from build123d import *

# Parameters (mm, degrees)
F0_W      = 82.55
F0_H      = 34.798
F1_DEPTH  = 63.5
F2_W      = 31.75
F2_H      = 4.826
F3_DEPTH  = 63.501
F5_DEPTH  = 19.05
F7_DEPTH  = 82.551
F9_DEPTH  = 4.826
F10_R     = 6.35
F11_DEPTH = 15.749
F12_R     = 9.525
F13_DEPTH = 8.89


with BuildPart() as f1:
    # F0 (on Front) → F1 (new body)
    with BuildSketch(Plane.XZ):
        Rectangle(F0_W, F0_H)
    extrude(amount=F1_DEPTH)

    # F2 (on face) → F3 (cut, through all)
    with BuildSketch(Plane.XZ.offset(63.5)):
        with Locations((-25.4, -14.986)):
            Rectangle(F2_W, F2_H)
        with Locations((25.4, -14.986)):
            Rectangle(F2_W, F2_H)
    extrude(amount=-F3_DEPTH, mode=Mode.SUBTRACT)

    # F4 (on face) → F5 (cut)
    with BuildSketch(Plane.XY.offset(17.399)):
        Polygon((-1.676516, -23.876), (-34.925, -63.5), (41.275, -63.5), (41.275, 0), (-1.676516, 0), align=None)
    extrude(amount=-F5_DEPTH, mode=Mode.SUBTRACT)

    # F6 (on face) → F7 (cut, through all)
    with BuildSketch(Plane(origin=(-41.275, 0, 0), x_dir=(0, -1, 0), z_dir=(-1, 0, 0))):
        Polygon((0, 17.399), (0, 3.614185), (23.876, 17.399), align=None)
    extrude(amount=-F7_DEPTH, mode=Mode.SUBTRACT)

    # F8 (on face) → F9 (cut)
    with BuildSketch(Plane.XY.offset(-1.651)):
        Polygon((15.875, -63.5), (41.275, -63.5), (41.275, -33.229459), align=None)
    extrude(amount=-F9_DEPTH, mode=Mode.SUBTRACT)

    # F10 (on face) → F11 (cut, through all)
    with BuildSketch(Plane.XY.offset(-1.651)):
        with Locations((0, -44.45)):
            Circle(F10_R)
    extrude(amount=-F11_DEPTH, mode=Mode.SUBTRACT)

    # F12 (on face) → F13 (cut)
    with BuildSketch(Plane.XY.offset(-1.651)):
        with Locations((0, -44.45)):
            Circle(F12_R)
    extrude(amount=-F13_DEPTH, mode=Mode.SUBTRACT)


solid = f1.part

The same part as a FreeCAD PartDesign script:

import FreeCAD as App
import Part
import Sketcher

V = App.Vector
Q = App.Units.Quantity

doc = App.newDocument("Part")
body = doc.addObject("PartDesign::Body", "Body")

# Sketch on XZ plane
sketch1 = body.newObject("Sketcher::SketchObject", "Sketch")
sketch1.AttachmentSupport = (doc.getObject("XZ_Plane"), [""])
sketch1.MapMode = "FlatFace"
sketch1.addGeometry([
    Part.LineSegment(V(-41.275, 17.399, 0), V(-41.275, -17.399, 0)),
    Part.LineSegment(V(-41.275, -17.399, 0), V(41.275, -17.399, 0)),
    Part.LineSegment(V(41.275, -17.399, 0), V(41.275, 17.399, 0)),
    Part.LineSegment(V(41.275, 17.399, 0), V(-41.275, 17.399, 0)),
], False)
sketch1.addConstraint([
    Sketcher.Constraint("Coincident", 0, 2, 1, 1),
    Sketcher.Constraint("Coincident", 1, 2, 2, 1),
    Sketcher.Constraint("Coincident", 2, 2, 3, 1),
    Sketcher.Constraint("Coincident", 3, 2, 0, 1),
    Sketcher.Constraint("Vertical", 0),
    Sketcher.Constraint("Horizontal", 1),
    Sketcher.Constraint("Vertical", 2),
    Sketcher.Constraint("Horizontal", 3),
    Sketcher.Constraint("Symmetric", 0, 2, 2, 2, -1, 1),
    Sketcher.Constraint("DistanceX", 1, 1, 1, 2, Q("3.25 in")),
    Sketcher.Constraint("DistanceY", 0, 2, 0, 1, Q("1.37 in")),
])
pad1 = body.newObject("PartDesign::Pad", "Pad")
pad1.Profile = sketch1
pad1.Length = Q("2.5 in")

# Sketch on XZ plane
sketch2 = body.newObject("Sketcher::SketchObject", "Sketch001")
sketch2.AttachmentSupport = (doc.getObject("XZ_Plane"), [""])
sketch2.MapMode = "FlatFace"
sketch2.AttachmentOffset = App.Placement(V(0, 0, 2.5 * 25.4), App.Rotation())
sketch2.addGeometry([
    Part.LineSegment(V(-41.275, -12.573, 0), V(-41.275, -17.399, 0)),  # 0
    Part.LineSegment(V(-41.275, -17.399, 0), V(-9.525, -17.399, 0)),  # 1
    Part.LineSegment(V(-9.525, -17.399, 0), V(-9.525, -12.573, 0)),  # 2
    Part.LineSegment(V(-9.525, -12.573, 0), V(-41.275, -12.573, 0)),  # 3
    Part.LineSegment(V(9.525, -12.573, 0), V(9.525, -17.399, 0)),  # 4
    Part.LineSegment(V(9.525, -17.399, 0), V(41.275, -17.399, 0)),  # 5
    Part.LineSegment(V(41.275, -17.399, 0), V(41.275, -12.573, 0)),  # 6
    Part.LineSegment(V(41.275, -12.573, 0), V(9.525, -12.573, 0)),  # 7
], False)
sketch2.addConstraint([
    Sketcher.Constraint("Coincident", 0, 2, 1, 1),
    Sketcher.Constraint("Coincident", 1, 2, 2, 1),
    Sketcher.Constraint("Coincident", 2, 2, 3, 1),
    Sketcher.Constraint("Coincident", 3, 2, 0, 1),
    Sketcher.Constraint("Coincident", 4, 2, 5, 1),
    Sketcher.Constraint("Coincident", 5, 2, 6, 1),
    Sketcher.Constraint("Coincident", 6, 2, 7, 1),
    Sketcher.Constraint("Coincident", 7, 2, 4, 1),
    Sketcher.Constraint("Vertical", 0),
    Sketcher.Constraint("Horizontal", 1),
    Sketcher.Constraint("Vertical", 2),
    Sketcher.Constraint("Horizontal", 3),
    Sketcher.Constraint("Vertical", 4),
    Sketcher.Constraint("Horizontal", 5),
    Sketcher.Constraint("Vertical", 6),
    Sketcher.Constraint("Horizontal", 7),
    Sketcher.Constraint("Symmetric", 1, 2, 4, 2, -2),
    Sketcher.Constraint("Symmetric", 3, 2, 6, 2, -2),
    Sketcher.Constraint("DistanceX", 0, 2, 4, 2, Q("2 in")),
    Sketcher.Constraint("DistanceX", 1, 1, 1, 2, Q("1.25 in")),
    Sketcher.Constraint("DistanceY", 0, 2, 0, 1, Q("0.19 in")),
    Sketcher.Constraint("DistanceY", 0, 2, -1, 1, Q("0.685 in")),
])
pocket1 = body.newObject("PartDesign::Pocket", "Pocket")
pocket1.Profile = sketch2
pocket1.Type = "ThroughAll"

# Sketch on XY plane
sketch3 = body.newObject("Sketcher::SketchObject", "Sketch002")
sketch3.AttachmentSupport = (doc.getObject("XY_Plane"), [""])
sketch3.MapMode = "FlatFace"
sketch3.AttachmentOffset = App.Placement(V(0, 0, 0.685 * 25.4), App.Rotation())
sketch3.addGeometry([
    Part.LineSegment(V(-1.676516, -23.876, 0), V(-34.925, -63.5, 0)),  # 0
    Part.LineSegment(V(-34.925, -63.5, 0), V(41.275, -63.5, 0)),  # 1
    Part.LineSegment(V(41.275, -63.5, 0), V(41.275, 0, 0)),  # 2
    Part.LineSegment(V(41.275, 0, 0), V(-1.676516, 0, 0)),  # 3
    Part.LineSegment(V(-1.676516, 0, 0), V(-1.676516, -23.876, 0)),  # 4
], False)
sketch3.addConstraint([
    Sketcher.Constraint("Coincident", 0, 2, 1, 1),
    Sketcher.Constraint("Coincident", 1, 2, 2, 1),
    Sketcher.Constraint("Coincident", 2, 2, 3, 1),
    Sketcher.Constraint("Coincident", 3, 2, 4, 1),
    Sketcher.Constraint("Coincident", 4, 2, 0, 1),
    Sketcher.Constraint("Horizontal", 1),
    Sketcher.Constraint("Vertical", 2),
    Sketcher.Constraint("Horizontal", 3),
    Sketcher.Constraint("Vertical", 4),
    Sketcher.Constraint("PointOnObject", 2, 2, -1),
    Sketcher.Constraint("DistanceX", 1, 1, 1, 2, Q("3 in")),
    Sketcher.Constraint("DistanceY", 2, 1, 2, 2, Q("2.5 in")),
    Sketcher.Constraint("Angle", 0, Q("-130 deg")),
    Sketcher.Constraint("DistanceY", 4, 2, 4, 1, Q("0.94 in")),
    Sketcher.Constraint("DistanceX", 0, 2, -1, 1, Q("1.375 in")),
])
pocket2 = body.newObject("PartDesign::Pocket", "Pocket001")
pocket2.Profile = sketch3
pocket2.Length = Q("0.75 in")

# Sketch on YZ plane
sketch4 = body.newObject("Sketcher::SketchObject", "Sketch003")
sketch4.AttachmentSupport = (doc.getObject("YZ_Plane"), [""])
sketch4.MapMode = "FlatFace"
sketch4.AttachmentOffset = App.Placement(V(0, 0, -1.625 * 25.4), App.Rotation())
sketch4.addGeometry([
    Part.LineSegment(V(0, 17.399, 0), V(0, 3.614185, 0)),
    Part.LineSegment(V(0, 3.614185, 0), V(-23.876, 17.399, 0)),
    Part.LineSegment(V(-23.876, 17.399, 0), V(0, 17.399, 0)),
], False)
sketch4.addConstraint([
    Sketcher.Constraint("Coincident", 0, 2, 1, 1),
    Sketcher.Constraint("Coincident", 1, 2, 2, 1),
    Sketcher.Constraint("Coincident", 2, 2, 0, 1),
    Sketcher.Constraint("Vertical", 0),
    Sketcher.Constraint("Horizontal", 2),
    Sketcher.Constraint("PointOnObject", 0, 2, -2),
    Sketcher.Constraint("Angle", 1, Q("150 deg")),
    Sketcher.Constraint("DistanceX", 2, 1, 2, 2, Q("0.94 in")),
    Sketcher.Constraint("DistanceY", -1, 1, 1, 2, Q("0.685 in")),
])
pocket3 = body.newObject("PartDesign::Pocket", "Pocket002")
pocket3.Profile = sketch4
pocket3.Type = "ThroughAll"
pocket3.Reversed = True

# Sketch on XY plane
sketch5 = body.newObject("Sketcher::SketchObject", "Sketch004")
sketch5.AttachmentSupport = (doc.getObject("XY_Plane"), [""])
sketch5.MapMode = "FlatFace"
sketch5.AttachmentOffset = App.Placement(V(0, 0, -0.065 * 25.4), App.Rotation())
sketch5.addGeometry([
    Part.LineSegment(V(15.875, -63.5, 0), V(41.275, -63.5, 0)),
    Part.LineSegment(V(41.275, -63.5, 0), V(41.275, -33.229459, 0)),
    Part.LineSegment(V(41.275, -33.229459, 0), V(15.875, -63.5, 0)),
], False)
sketch5.addConstraint([
    Sketcher.Constraint("Coincident", 0, 2, 1, 1),
    Sketcher.Constraint("Coincident", 1, 2, 2, 1),
    Sketcher.Constraint("Coincident", 2, 2, 0, 1),
    Sketcher.Constraint("Horizontal", 0),
    Sketcher.Constraint("Vertical", 1),
    Sketcher.Constraint("DistanceX", 0, 1, 0, 2, Q("1 in")),
    Sketcher.Constraint("Angle", 2, Q("-130 deg")),
    Sketcher.Constraint("DistanceY", 0, 2, -1, 1, Q("2.5 in")),
    Sketcher.Constraint("DistanceX", -1, 1, 0, 2, Q("1.625 in")),
])
pocket4 = body.newObject("PartDesign::Pocket", "Pocket003")
pocket4.Profile = sketch5
pocket4.Length = Q("0.19 in")

# Sketch on XY plane
sketch6 = body.newObject("Sketcher::SketchObject", "Sketch005")
sketch6.AttachmentSupport = (doc.getObject("XY_Plane"), [""])
sketch6.MapMode = "FlatFace"
sketch6.AttachmentOffset = App.Placement(V(0, 0, -0.065 * 25.4), App.Rotation())
sketch6.addGeometry(Part.Circle(V(0, -44.45, 0), V(0, 0, 1), 6.35), False)
sketch6.addConstraint([
    Sketcher.Constraint("PointOnObject", 0, 3, -2),
    Sketcher.Constraint("Diameter", 0, Q("0.5 in")),
    Sketcher.Constraint("DistanceY", 0, 3, -1, 1, Q("1.75 in")),
])
pocket5 = body.newObject("PartDesign::Pocket", "Pocket004")
pocket5.Profile = sketch6
pocket5.Type = "ThroughAll"

# Sketch on XY plane
sketch7 = body.newObject("Sketcher::SketchObject", "Sketch006")
sketch7.AttachmentSupport = (doc.getObject("XY_Plane"), [""])
sketch7.MapMode = "FlatFace"
sketch7.AttachmentOffset = App.Placement(V(0, 0, -0.065 * 25.4), App.Rotation())
sketch7.addGeometry(Part.Circle(V(0, -44.45, 0), V(0, 0, 1), 9.525), False)
sketch7.addConstraint([
    Sketcher.Constraint("PointOnObject", 0, 3, -2),
    Sketcher.Constraint("Diameter", 0, Q("0.75 in")),
    Sketcher.Constraint("DistanceY", 0, 3, -1, 1, Q("1.75 in")),
])
pocket6 = body.newObject("PartDesign::Pocket", "Pocket005")
pocket6.Profile = sketch7
pocket6.Length = Q("0.35 in")

doc.recompute()
